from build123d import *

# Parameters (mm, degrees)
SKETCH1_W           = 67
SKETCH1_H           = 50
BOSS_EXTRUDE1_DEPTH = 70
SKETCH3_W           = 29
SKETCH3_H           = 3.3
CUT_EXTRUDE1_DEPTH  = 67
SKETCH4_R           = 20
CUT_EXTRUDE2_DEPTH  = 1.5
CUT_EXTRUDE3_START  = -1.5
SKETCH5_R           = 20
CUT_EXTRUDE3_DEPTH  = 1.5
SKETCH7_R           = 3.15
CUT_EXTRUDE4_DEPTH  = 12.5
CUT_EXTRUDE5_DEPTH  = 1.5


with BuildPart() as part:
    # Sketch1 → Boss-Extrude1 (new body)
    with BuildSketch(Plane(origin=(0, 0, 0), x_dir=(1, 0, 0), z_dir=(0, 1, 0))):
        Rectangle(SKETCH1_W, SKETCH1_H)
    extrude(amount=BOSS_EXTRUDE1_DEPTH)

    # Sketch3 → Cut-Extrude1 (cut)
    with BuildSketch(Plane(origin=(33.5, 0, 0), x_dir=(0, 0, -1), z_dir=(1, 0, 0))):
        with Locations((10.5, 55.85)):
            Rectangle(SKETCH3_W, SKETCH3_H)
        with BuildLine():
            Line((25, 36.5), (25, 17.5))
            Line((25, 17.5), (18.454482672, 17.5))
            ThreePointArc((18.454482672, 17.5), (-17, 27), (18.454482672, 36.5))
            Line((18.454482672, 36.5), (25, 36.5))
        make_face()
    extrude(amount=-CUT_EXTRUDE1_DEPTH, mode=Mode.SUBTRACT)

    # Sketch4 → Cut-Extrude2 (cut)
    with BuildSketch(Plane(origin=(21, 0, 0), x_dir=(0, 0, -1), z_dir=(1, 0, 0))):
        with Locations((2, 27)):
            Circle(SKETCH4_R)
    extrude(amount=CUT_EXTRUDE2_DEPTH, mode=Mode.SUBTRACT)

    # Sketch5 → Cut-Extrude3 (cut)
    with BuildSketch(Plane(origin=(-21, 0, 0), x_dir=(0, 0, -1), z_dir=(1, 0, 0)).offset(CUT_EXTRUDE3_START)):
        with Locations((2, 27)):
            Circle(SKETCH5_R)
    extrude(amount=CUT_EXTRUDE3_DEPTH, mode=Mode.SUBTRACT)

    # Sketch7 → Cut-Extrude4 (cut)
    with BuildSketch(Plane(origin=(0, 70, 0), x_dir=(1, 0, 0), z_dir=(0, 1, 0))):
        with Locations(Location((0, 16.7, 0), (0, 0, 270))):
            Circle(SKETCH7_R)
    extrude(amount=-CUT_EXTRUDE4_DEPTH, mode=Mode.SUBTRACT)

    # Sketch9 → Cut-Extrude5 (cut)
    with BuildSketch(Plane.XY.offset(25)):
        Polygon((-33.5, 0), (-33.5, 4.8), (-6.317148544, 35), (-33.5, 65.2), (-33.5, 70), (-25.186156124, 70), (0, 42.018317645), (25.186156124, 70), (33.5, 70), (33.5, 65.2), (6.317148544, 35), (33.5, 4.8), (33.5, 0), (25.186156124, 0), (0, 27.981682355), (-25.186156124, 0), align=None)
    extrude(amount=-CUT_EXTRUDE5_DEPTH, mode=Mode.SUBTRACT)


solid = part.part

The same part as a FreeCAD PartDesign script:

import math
import FreeCAD as App
import Part
import Sketcher
from FreeCAD import Vector
Q = App.Units.Quantity

doc = App.newDocument("Part")
body = doc.addObject("PartDesign::Body", "Body")

# Sketch on XZ plane
sketch1 = body.newObject("Sketcher::SketchObject", "Sketch")
sketch1.AttachmentSupport = (doc.getObject("XZ_Plane"), [""])
sketch1.MapMode = "FlatFace"
sketch1.addGeometry(Part.LineSegment(Vector(-34, -25, 0), Vector(-34, 25, 0)), False)
sketch1.addGeometry(Part.LineSegment(Vector(-34, 25, 0), Vector(34, 25, 0)), False)
sketch1.addGeometry(Part.LineSegment(Vector(34, 25, 0), Vector(34, -25, 0)), False)
sketch1.addGeometry(Part.LineSegment(Vector(34, -25, 0), Vector(-34, -25, 0)), False)
sketch1.addConstraint(Sketcher.Constraint("Coincident", 0, 2, 1, 1))
sketch1.addConstraint(Sketcher.Constraint("Coincident", 1, 2, 2, 1))
sketch1.addConstraint(Sketcher.Constraint("Coincident", 2, 2, 3, 1))
sketch1.addConstraint(Sketcher.Constraint("Coincident", 3, 2, 0, 1))
sketch1.addConstraint(Sketcher.Constraint("Vertical", 0))
sketch1.addConstraint(Sketcher.Constraint("Horizontal", 1))
sketch1.addConstraint(Sketcher.Constraint("Vertical", 2))
sketch1.addConstraint(Sketcher.Constraint("Horizontal", 3))
sketch1.addConstraint(Sketcher.Constraint("Symmetric", 0, 2, 2, 2, -1, 1))
sketch1.addConstraint(Sketcher.Constraint("DistanceX", 1, 1, 1, 2, Q("67 mm")))
sketch1.addConstraint(Sketcher.Constraint("DistanceY", 0, 1, 0, 2, Q("50 mm")))
pad1 = body.newObject("PartDesign::Pad", "Pad")
pad1.Profile = sketch1
pad1.Length = 70
pad1.Reversed = True

# Sketch on YZ plane
sketch2 = body.newObject("Sketcher::SketchObject", "Sketch001")
sketch2.AttachmentSupport = (doc.getObject("YZ_Plane"), [""])
sketch2.MapMode = "FlatFace"
sketch2.AttachmentOffset = App.Placement(Vector(0, 0, 33.5), App.Rotation())
sketch2.addGeometry(Part.LineSegment(Vector(57.5, 4, 0), Vector(54.2, 4, 0)), False)
sketch2.addGeometry(Part.LineSegment(Vector(54.2, 4, 0), Vector(54.2, -25, 0)), False)
sketch2.addGeometry(Part.LineSegment(Vector(54.2, -25, 0), Vector(57.5, -25, 0)), False)
sketch2.addGeometry(Part.LineSegment(Vector(57.5, -25, 0), Vector(57.5, 4, 0)), False)
sketch2.addGeometry(Part.LineSegment(Vector(17.5, -25, 0), Vector(36.5, -25, 0)), False)
sketch2.addGeometry(Part.LineSegment(Vector(36.5, -25, 0), Vector(36.5, -18.5, 0)), False)
sketch2.addGeometry(Part.ArcOfCircle(Part.Circle(Vector(27, -2, 0), Vector(0, 0, 1), 19), math.radians(-60), math.radians(240)), False)
sketch2.addGeometry(Part.LineSegment(Vector(17.5, -18.5, 0), Vector(17.5, -25, 0)), False)
sketch2.addConstraint(Sketcher.Constraint("Coincident", 0, 2, 1, 1))
sketch2.addConstraint(Sketcher.Constraint("Coincident", 1, 2, 2, 1))
sketch2.addConstraint(Sketcher.Constraint("Coincident", 2, 2, 3, 1))
sketch2.addConstraint(Sketcher.Constraint("Coincident", 3, 2, 0, 1))
sketch2.addConstraint(Sketcher.Constraint("Coincident", 4, 2, 5, 1))
sketch2.addConstraint(Sketcher.Constraint("Coincident", 5, 2, 6, 1))
sketch2.addConstraint(Sketcher.Constraint("Coincident", 6, 2, 7, 1))
sketch2.addConstraint(Sketcher.Constraint("Coincident", 7, 2, 4, 1))
sketch2.addConstraint(Sketcher.Constraint("Horizontal", 0))
sketch2.addConstraint(Sketcher.Constraint("Vertical", 1))
sketch2.addConstraint(Sketcher.Constraint("Horizontal", 2))
sketch2.addConstraint(Sketcher.Constraint("Vertical", 3))
sketch2.addConstraint(Sketcher.Constraint("Horizontal", 4))
sketch2.addConstraint(Sketcher.Constraint("Vertical", 5))
sketch2.addConstraint(Sketcher.Constraint("Vertical", 7))
sketch2.addConstraint(Sketcher.Constraint("Horizontal", 2, 2, 4, 2))
sketch2.addConstraint(Sketcher.Constraint("Horizontal", 5, 2, 6, 2))
sketch2.addConstraint(Sketcher.Constraint("Radius", 6, Q("19 mm")))
sketch2.addConstraint(Sketcher.Constraint("DistanceX", 4, 1, 4, 2, Q("19 mm")))
sketch2.addConstraint(Sketcher.Constraint("DistanceY", 1, 2, 1, 1, Q("29 mm")))
sketch2.addConstraint(Sketcher.Constraint("DistanceX", 0, 2, 0, 1, Q("3.3 mm")))
sketch2.addConstraint(Sketcher.Constraint("DistanceX", -1, 1, 6, 3, Q("27 mm")))
sketch2.addConstraint(Sketcher.Constraint("DistanceY", 6, 3, -1, 1, Q("2 mm")))
sketch2.addConstraint(Sketcher.Constraint("DistanceY", -1, 1, 0, 2, Q("4 mm")))
sketch2.addConstraint(Sketcher.Constraint("DistanceX", 4, 2, 2, 2, Q("21 mm")))
pocket1 = body.newObject("PartDesign::Pocket", "Pocket")
pocket1.Profile = sketch2
pocket1.Length = 67

# Sketch on YZ plane
sketch3 = body.newObject("Sketcher::SketchObject", "Sketch002")
sketch3.AttachmentSupport = (doc.getObject("YZ_Plane"), [""])
sketch3.MapMode = "FlatFace"
sketch3.AttachmentOffset = App.Placement(Vector(0, 0, 21), App.Rotation())
sketch3.addGeometry(Part.Circle(Vector(27, -2, 0), Vector(0, 0, 1), 20), False)
sketch3.addConstraint(Sketcher.Constraint("Diameter", 0, Q("40 mm")))
sketch3.addConstraint(Sketcher.Constraint("DistanceX", -1, 1, 0, 3, Q("27 mm")))
sketch3.addConstraint(Sketcher.Constraint("DistanceY", 0, 3, -1, 1, Q("2 mm")))
pocket2 = body.newObject("PartDesign::Pocket", "Pocket001")
pocket2.Profile = sketch3
pocket2.Length = 1.5
pocket2.Reversed = True

# Sketch on YZ plane
sketch4 = body.newObject("Sketcher::SketchObject", "Sketch003")
sketch4.AttachmentSupport = (doc.getObject("YZ_Plane"), [""])
sketch4.MapMode = "FlatFace"
sketch4.AttachmentOffset = App.Placement(Vector(0, 0, -22.5), App.Rotation())
sketch4.addGeometry(Part.Circle(Vector(27, -2, 0), Vector(0, 0, 1), 20), False)
sketch4.addConstraint(Sketcher.Constraint("Diameter", 0, Q("40 mm")))
sketch4.addConstraint(Sketcher.Constraint("DistanceX", -1, 1, 0, 3, Q("27 mm")))
sketch4.addConstraint(Sketcher.Constraint("DistanceY", 0, 3, -1, 1, Q("2 mm")))
pocket3 = body.newObject("PartDesign::Pocket", "Pocket002")
pocket3.Profile = sketch4
pocket3.Length = 1.5
pocket3.Reversed = True

# Sketch on XZ plane
sketch5 = body.newObject("Sketcher::SketchObject", "Sketch004")
sketch5.AttachmentSupport = (doc.getObject("XZ_Plane"), [""])
sketch5.MapMode = "FlatFace"
sketch5.AttachmentOffset = App.Placement(Vector(0, 0, -70), App.Rotation())
sketch5.addGeometry(Part.Circle(Vector(0, -16.7, 0), Vector(0, 0, 1), 3.1), False)
sketch5.addConstraint(Sketcher.Constraint("PointOnObject", 0, 3, -2))
sketch5.addConstraint(Sketcher.Constraint("Diameter", 0, Q("6.3 mm")))
sketch5.addConstraint(Sketcher.Constraint("DistanceY", 0, 3, -1, 1, Q("16.7 mm")))
pocket4 = body.newObject("PartDesign::Pocket", "Pocket003")
pocket4.Profile = sketch5
pocket4.Length = 12.5
pocket4.Reversed = True

# Sketch on XY plane
sketch6 = body.newObject("Sketcher::SketchObject", "Sketch005")
sketch6.AttachmentSupport = (doc.getObject("XY_Plane"), [""])
sketch6.MapMode = "FlatFace"
sketch6.AttachmentOffset = App.Placement(Vector(0, 0, 25), App.Rotation())
sketch6.addGeometry(Part.LineSegment(Vector(-33.5, 4.8, 0), Vector(-33.5, 0, 0)), False)
sketch6.addGeometry(Part.LineSegment(Vector(-33.5, 0, 0), Vector(-25.2, 0, 0)), False)
sketch6.addGeometry(Part.LineSegment(Vector(-25.2, 0, 0), Vector(0, 28, 0)), False)
sketch6.addGeometry(Part.LineSegment(Vector(0, 28, 0), Vector(25.2, 0, 0)), False)
sketch6.addGeometry(Part.LineSegment(Vector(25.2, 0, 0), Vector(33.5, 0, 0)), False)
sketch6.addGeometry(Part.LineSegment(Vector(33.5, 0, 0), Vector(33.5, 4.8, 0)), False)
sketch6.addGeometry(Part.LineSegment(Vector(33.5, 4.8, 0), Vector(6.3, 35, 0)), False)
sketch6.addGeometry(Part.LineSegment(Vector(6.3, 35, 0), Vector(33.5, 65.2, 0)), False)
sketch6.addGeometry(Part.LineSegment(Vector(33.5, 65.2, 0), Vector(33.5, 70, 0)), False)
sketch6.addGeometry(Part.LineSegment(Vector(33.5, 70, 0), Vector(25.2, 70, 0)), False)
sketch6.addGeometry(Part.LineSegment(Vector(25.2, 70, 0), Vector(0, 42, 0)), False)
sketch6.addGeometry(Part.LineSegment(Vector(0, 42, 0), Vector(-25.2, 70, 0)), False)
sketch6.addGeometry(Part.LineSegment(Vector(-25.2, 70, 0), Vector(-33.5, 70, 0)), False)
sketch6.addGeometry(Part.LineSegment(Vector(-33.5, 70, 0), Vector(-33.5, 65.2, 0)), False)
sketch6.addGeometry(Part.LineSegment(Vector(-33.5, 65.2, 0), Vector(-6.3, 35, 0)), False)
sketch6.addGeometry(Part.LineSegment(Vector(-6.3, 35, 0), Vector(-33.5, 4.8, 0)), False)
sketch6.addConstraint(Sketcher.Constraint("Coincident", 0, 2, 1, 1))
sketch6.addConstraint(Sketcher.Constraint("Coincident", 1, 2, 2, 1))
sketch6.addConstraint(Sketcher.Constraint("Coincident", 2, 2, 3, 1))
sketch6.addConstraint(Sketcher.Constraint("Coincident", 3, 2, 4, 1))
sketch6.addConstraint(Sketcher.Constraint("Coincident", 4, 2, 5, 1))
sketch6.addConstraint(Sketcher.Constraint("Coincident", 5, 2, 6, 1))
sketch6.addConstraint(Sketcher.Constraint("Coincident", 6, 2, 7, 1))
sketch6.addConstraint(Sketcher.Constraint("Coincident", 7, 2, 8, 1))
sketch6.addConstraint(Sketcher.Constraint("Coincident", 8, 2, 9, 1))
sketch6.addConstraint(Sketcher.Constraint("Coincident", 9, 2, 10, 1))
sketch6.addConstraint(Sketcher.Constraint("Coincident", 10, 2, 11, 1))
sketch6.addConstraint(Sketcher.Constraint("Coincident", 11, 2, 12, 1))
sketch6.addConstraint(Sketcher.Constraint("Coincident", 12, 2, 13, 1))
sketch6.addConstraint(Sketcher.Constraint("Coincident", 13, 2, 14, 1))
sketch6.addConstraint(Sketcher.Constraint("Coincident", 14, 2, 15, 1))
sketch6.addConstraint(Sketcher.Constraint("Coincident", 15, 2, 0, 1))
sketch6.addConstraint(Sketcher.Constraint("Vertical", 0))
sketch6.addConstraint(Sketcher.Constraint("Horizontal", 1))
sketch6.addConstraint(Sketcher.Constraint("Horizontal", 4))
sketch6.addConstraint(Sketcher.Constraint("Vertical", 5))
sketch6.addConstraint(Sketcher.Constraint("Vertical", 8))
sketch6.addConstraint(Sketcher.Constraint("Horizontal", 9))
sketch6.addConstraint(Sketcher.Constraint("Horizontal", 12))
sketch6.addConstraint(Sketcher.Constraint("Vertical", 13))
sketch6.addConstraint(Sketcher.Constraint("Symmetric", 1, 2, 3, 2, -1, 1))
sketch6.addConstraint(Sketcher.Constraint("Symmetric", 0, 2, 4, 2, -2))
sketch6.addConstraint(Sketcher.Constraint("Symmetric", 9, 2, 11, 2, -2))
sketch6.addConstraint(Sketcher.Constraint("Symmetric", 7, 2, 13, 2, -2))
sketch6.addConstraint(Sketcher.Constraint("Symmetric", 6, 2, 14, 2, -2))
sketch6.addConstraint(Sketcher.Constraint("PointOnObject", 2, 2, -2))
sketch6.addConstraint(Sketcher.Constraint("PointOnObject", 10, 2, -2))
sketch6.addConstraint(Sketcher.Constraint("Parallel", 3, 6))
sketch6.addConstraint(Sketcher.Constraint("Parallel", 2, 7))
sketch6.addConstraint(Sketcher.Constraint("Parallel", 7, 10))
sketch6.addConstraint(Sketcher.Constraint("Parallel", 10, 15))
sketch6.addConstraint(Sketcher.Constraint("Vertical", 5, 2, 7, 2))
sketch6.addConstraint(Sketcher.Constraint("Vertical", 3, 2, 9, 2))
sketch6.addConstraint(Sketcher.Constraint("Equal", 5, 8))
sketch6.addConstraint(Sketcher.Constraint("DistanceY", 0, 2, 0, 1, Q("4.8 mm")))
sketch6.addConstraint(Sketcher.Constraint("DistanceY", -1, 1, 6, 2, Q("35 mm")))
sketch6.addConstraint(Sketcher.Constraint("DistanceX", 0, 2, 4, 2, Q("67 mm")))
sketch6.addConstraint(Sketcher.Constraint("Distance", 2, Q("37.647271 mm")))
sketch6.addConstraint(Sketcher.Constraint("DistanceX", 1, 1, 1, 2, Q("8.313844 mm")))
pocket5 = body.newObject("PartDesign::Pocket", "Pocket004")
pocket5.Profile = sketch6
pocket5.Length = 1.5

doc.recompute()
